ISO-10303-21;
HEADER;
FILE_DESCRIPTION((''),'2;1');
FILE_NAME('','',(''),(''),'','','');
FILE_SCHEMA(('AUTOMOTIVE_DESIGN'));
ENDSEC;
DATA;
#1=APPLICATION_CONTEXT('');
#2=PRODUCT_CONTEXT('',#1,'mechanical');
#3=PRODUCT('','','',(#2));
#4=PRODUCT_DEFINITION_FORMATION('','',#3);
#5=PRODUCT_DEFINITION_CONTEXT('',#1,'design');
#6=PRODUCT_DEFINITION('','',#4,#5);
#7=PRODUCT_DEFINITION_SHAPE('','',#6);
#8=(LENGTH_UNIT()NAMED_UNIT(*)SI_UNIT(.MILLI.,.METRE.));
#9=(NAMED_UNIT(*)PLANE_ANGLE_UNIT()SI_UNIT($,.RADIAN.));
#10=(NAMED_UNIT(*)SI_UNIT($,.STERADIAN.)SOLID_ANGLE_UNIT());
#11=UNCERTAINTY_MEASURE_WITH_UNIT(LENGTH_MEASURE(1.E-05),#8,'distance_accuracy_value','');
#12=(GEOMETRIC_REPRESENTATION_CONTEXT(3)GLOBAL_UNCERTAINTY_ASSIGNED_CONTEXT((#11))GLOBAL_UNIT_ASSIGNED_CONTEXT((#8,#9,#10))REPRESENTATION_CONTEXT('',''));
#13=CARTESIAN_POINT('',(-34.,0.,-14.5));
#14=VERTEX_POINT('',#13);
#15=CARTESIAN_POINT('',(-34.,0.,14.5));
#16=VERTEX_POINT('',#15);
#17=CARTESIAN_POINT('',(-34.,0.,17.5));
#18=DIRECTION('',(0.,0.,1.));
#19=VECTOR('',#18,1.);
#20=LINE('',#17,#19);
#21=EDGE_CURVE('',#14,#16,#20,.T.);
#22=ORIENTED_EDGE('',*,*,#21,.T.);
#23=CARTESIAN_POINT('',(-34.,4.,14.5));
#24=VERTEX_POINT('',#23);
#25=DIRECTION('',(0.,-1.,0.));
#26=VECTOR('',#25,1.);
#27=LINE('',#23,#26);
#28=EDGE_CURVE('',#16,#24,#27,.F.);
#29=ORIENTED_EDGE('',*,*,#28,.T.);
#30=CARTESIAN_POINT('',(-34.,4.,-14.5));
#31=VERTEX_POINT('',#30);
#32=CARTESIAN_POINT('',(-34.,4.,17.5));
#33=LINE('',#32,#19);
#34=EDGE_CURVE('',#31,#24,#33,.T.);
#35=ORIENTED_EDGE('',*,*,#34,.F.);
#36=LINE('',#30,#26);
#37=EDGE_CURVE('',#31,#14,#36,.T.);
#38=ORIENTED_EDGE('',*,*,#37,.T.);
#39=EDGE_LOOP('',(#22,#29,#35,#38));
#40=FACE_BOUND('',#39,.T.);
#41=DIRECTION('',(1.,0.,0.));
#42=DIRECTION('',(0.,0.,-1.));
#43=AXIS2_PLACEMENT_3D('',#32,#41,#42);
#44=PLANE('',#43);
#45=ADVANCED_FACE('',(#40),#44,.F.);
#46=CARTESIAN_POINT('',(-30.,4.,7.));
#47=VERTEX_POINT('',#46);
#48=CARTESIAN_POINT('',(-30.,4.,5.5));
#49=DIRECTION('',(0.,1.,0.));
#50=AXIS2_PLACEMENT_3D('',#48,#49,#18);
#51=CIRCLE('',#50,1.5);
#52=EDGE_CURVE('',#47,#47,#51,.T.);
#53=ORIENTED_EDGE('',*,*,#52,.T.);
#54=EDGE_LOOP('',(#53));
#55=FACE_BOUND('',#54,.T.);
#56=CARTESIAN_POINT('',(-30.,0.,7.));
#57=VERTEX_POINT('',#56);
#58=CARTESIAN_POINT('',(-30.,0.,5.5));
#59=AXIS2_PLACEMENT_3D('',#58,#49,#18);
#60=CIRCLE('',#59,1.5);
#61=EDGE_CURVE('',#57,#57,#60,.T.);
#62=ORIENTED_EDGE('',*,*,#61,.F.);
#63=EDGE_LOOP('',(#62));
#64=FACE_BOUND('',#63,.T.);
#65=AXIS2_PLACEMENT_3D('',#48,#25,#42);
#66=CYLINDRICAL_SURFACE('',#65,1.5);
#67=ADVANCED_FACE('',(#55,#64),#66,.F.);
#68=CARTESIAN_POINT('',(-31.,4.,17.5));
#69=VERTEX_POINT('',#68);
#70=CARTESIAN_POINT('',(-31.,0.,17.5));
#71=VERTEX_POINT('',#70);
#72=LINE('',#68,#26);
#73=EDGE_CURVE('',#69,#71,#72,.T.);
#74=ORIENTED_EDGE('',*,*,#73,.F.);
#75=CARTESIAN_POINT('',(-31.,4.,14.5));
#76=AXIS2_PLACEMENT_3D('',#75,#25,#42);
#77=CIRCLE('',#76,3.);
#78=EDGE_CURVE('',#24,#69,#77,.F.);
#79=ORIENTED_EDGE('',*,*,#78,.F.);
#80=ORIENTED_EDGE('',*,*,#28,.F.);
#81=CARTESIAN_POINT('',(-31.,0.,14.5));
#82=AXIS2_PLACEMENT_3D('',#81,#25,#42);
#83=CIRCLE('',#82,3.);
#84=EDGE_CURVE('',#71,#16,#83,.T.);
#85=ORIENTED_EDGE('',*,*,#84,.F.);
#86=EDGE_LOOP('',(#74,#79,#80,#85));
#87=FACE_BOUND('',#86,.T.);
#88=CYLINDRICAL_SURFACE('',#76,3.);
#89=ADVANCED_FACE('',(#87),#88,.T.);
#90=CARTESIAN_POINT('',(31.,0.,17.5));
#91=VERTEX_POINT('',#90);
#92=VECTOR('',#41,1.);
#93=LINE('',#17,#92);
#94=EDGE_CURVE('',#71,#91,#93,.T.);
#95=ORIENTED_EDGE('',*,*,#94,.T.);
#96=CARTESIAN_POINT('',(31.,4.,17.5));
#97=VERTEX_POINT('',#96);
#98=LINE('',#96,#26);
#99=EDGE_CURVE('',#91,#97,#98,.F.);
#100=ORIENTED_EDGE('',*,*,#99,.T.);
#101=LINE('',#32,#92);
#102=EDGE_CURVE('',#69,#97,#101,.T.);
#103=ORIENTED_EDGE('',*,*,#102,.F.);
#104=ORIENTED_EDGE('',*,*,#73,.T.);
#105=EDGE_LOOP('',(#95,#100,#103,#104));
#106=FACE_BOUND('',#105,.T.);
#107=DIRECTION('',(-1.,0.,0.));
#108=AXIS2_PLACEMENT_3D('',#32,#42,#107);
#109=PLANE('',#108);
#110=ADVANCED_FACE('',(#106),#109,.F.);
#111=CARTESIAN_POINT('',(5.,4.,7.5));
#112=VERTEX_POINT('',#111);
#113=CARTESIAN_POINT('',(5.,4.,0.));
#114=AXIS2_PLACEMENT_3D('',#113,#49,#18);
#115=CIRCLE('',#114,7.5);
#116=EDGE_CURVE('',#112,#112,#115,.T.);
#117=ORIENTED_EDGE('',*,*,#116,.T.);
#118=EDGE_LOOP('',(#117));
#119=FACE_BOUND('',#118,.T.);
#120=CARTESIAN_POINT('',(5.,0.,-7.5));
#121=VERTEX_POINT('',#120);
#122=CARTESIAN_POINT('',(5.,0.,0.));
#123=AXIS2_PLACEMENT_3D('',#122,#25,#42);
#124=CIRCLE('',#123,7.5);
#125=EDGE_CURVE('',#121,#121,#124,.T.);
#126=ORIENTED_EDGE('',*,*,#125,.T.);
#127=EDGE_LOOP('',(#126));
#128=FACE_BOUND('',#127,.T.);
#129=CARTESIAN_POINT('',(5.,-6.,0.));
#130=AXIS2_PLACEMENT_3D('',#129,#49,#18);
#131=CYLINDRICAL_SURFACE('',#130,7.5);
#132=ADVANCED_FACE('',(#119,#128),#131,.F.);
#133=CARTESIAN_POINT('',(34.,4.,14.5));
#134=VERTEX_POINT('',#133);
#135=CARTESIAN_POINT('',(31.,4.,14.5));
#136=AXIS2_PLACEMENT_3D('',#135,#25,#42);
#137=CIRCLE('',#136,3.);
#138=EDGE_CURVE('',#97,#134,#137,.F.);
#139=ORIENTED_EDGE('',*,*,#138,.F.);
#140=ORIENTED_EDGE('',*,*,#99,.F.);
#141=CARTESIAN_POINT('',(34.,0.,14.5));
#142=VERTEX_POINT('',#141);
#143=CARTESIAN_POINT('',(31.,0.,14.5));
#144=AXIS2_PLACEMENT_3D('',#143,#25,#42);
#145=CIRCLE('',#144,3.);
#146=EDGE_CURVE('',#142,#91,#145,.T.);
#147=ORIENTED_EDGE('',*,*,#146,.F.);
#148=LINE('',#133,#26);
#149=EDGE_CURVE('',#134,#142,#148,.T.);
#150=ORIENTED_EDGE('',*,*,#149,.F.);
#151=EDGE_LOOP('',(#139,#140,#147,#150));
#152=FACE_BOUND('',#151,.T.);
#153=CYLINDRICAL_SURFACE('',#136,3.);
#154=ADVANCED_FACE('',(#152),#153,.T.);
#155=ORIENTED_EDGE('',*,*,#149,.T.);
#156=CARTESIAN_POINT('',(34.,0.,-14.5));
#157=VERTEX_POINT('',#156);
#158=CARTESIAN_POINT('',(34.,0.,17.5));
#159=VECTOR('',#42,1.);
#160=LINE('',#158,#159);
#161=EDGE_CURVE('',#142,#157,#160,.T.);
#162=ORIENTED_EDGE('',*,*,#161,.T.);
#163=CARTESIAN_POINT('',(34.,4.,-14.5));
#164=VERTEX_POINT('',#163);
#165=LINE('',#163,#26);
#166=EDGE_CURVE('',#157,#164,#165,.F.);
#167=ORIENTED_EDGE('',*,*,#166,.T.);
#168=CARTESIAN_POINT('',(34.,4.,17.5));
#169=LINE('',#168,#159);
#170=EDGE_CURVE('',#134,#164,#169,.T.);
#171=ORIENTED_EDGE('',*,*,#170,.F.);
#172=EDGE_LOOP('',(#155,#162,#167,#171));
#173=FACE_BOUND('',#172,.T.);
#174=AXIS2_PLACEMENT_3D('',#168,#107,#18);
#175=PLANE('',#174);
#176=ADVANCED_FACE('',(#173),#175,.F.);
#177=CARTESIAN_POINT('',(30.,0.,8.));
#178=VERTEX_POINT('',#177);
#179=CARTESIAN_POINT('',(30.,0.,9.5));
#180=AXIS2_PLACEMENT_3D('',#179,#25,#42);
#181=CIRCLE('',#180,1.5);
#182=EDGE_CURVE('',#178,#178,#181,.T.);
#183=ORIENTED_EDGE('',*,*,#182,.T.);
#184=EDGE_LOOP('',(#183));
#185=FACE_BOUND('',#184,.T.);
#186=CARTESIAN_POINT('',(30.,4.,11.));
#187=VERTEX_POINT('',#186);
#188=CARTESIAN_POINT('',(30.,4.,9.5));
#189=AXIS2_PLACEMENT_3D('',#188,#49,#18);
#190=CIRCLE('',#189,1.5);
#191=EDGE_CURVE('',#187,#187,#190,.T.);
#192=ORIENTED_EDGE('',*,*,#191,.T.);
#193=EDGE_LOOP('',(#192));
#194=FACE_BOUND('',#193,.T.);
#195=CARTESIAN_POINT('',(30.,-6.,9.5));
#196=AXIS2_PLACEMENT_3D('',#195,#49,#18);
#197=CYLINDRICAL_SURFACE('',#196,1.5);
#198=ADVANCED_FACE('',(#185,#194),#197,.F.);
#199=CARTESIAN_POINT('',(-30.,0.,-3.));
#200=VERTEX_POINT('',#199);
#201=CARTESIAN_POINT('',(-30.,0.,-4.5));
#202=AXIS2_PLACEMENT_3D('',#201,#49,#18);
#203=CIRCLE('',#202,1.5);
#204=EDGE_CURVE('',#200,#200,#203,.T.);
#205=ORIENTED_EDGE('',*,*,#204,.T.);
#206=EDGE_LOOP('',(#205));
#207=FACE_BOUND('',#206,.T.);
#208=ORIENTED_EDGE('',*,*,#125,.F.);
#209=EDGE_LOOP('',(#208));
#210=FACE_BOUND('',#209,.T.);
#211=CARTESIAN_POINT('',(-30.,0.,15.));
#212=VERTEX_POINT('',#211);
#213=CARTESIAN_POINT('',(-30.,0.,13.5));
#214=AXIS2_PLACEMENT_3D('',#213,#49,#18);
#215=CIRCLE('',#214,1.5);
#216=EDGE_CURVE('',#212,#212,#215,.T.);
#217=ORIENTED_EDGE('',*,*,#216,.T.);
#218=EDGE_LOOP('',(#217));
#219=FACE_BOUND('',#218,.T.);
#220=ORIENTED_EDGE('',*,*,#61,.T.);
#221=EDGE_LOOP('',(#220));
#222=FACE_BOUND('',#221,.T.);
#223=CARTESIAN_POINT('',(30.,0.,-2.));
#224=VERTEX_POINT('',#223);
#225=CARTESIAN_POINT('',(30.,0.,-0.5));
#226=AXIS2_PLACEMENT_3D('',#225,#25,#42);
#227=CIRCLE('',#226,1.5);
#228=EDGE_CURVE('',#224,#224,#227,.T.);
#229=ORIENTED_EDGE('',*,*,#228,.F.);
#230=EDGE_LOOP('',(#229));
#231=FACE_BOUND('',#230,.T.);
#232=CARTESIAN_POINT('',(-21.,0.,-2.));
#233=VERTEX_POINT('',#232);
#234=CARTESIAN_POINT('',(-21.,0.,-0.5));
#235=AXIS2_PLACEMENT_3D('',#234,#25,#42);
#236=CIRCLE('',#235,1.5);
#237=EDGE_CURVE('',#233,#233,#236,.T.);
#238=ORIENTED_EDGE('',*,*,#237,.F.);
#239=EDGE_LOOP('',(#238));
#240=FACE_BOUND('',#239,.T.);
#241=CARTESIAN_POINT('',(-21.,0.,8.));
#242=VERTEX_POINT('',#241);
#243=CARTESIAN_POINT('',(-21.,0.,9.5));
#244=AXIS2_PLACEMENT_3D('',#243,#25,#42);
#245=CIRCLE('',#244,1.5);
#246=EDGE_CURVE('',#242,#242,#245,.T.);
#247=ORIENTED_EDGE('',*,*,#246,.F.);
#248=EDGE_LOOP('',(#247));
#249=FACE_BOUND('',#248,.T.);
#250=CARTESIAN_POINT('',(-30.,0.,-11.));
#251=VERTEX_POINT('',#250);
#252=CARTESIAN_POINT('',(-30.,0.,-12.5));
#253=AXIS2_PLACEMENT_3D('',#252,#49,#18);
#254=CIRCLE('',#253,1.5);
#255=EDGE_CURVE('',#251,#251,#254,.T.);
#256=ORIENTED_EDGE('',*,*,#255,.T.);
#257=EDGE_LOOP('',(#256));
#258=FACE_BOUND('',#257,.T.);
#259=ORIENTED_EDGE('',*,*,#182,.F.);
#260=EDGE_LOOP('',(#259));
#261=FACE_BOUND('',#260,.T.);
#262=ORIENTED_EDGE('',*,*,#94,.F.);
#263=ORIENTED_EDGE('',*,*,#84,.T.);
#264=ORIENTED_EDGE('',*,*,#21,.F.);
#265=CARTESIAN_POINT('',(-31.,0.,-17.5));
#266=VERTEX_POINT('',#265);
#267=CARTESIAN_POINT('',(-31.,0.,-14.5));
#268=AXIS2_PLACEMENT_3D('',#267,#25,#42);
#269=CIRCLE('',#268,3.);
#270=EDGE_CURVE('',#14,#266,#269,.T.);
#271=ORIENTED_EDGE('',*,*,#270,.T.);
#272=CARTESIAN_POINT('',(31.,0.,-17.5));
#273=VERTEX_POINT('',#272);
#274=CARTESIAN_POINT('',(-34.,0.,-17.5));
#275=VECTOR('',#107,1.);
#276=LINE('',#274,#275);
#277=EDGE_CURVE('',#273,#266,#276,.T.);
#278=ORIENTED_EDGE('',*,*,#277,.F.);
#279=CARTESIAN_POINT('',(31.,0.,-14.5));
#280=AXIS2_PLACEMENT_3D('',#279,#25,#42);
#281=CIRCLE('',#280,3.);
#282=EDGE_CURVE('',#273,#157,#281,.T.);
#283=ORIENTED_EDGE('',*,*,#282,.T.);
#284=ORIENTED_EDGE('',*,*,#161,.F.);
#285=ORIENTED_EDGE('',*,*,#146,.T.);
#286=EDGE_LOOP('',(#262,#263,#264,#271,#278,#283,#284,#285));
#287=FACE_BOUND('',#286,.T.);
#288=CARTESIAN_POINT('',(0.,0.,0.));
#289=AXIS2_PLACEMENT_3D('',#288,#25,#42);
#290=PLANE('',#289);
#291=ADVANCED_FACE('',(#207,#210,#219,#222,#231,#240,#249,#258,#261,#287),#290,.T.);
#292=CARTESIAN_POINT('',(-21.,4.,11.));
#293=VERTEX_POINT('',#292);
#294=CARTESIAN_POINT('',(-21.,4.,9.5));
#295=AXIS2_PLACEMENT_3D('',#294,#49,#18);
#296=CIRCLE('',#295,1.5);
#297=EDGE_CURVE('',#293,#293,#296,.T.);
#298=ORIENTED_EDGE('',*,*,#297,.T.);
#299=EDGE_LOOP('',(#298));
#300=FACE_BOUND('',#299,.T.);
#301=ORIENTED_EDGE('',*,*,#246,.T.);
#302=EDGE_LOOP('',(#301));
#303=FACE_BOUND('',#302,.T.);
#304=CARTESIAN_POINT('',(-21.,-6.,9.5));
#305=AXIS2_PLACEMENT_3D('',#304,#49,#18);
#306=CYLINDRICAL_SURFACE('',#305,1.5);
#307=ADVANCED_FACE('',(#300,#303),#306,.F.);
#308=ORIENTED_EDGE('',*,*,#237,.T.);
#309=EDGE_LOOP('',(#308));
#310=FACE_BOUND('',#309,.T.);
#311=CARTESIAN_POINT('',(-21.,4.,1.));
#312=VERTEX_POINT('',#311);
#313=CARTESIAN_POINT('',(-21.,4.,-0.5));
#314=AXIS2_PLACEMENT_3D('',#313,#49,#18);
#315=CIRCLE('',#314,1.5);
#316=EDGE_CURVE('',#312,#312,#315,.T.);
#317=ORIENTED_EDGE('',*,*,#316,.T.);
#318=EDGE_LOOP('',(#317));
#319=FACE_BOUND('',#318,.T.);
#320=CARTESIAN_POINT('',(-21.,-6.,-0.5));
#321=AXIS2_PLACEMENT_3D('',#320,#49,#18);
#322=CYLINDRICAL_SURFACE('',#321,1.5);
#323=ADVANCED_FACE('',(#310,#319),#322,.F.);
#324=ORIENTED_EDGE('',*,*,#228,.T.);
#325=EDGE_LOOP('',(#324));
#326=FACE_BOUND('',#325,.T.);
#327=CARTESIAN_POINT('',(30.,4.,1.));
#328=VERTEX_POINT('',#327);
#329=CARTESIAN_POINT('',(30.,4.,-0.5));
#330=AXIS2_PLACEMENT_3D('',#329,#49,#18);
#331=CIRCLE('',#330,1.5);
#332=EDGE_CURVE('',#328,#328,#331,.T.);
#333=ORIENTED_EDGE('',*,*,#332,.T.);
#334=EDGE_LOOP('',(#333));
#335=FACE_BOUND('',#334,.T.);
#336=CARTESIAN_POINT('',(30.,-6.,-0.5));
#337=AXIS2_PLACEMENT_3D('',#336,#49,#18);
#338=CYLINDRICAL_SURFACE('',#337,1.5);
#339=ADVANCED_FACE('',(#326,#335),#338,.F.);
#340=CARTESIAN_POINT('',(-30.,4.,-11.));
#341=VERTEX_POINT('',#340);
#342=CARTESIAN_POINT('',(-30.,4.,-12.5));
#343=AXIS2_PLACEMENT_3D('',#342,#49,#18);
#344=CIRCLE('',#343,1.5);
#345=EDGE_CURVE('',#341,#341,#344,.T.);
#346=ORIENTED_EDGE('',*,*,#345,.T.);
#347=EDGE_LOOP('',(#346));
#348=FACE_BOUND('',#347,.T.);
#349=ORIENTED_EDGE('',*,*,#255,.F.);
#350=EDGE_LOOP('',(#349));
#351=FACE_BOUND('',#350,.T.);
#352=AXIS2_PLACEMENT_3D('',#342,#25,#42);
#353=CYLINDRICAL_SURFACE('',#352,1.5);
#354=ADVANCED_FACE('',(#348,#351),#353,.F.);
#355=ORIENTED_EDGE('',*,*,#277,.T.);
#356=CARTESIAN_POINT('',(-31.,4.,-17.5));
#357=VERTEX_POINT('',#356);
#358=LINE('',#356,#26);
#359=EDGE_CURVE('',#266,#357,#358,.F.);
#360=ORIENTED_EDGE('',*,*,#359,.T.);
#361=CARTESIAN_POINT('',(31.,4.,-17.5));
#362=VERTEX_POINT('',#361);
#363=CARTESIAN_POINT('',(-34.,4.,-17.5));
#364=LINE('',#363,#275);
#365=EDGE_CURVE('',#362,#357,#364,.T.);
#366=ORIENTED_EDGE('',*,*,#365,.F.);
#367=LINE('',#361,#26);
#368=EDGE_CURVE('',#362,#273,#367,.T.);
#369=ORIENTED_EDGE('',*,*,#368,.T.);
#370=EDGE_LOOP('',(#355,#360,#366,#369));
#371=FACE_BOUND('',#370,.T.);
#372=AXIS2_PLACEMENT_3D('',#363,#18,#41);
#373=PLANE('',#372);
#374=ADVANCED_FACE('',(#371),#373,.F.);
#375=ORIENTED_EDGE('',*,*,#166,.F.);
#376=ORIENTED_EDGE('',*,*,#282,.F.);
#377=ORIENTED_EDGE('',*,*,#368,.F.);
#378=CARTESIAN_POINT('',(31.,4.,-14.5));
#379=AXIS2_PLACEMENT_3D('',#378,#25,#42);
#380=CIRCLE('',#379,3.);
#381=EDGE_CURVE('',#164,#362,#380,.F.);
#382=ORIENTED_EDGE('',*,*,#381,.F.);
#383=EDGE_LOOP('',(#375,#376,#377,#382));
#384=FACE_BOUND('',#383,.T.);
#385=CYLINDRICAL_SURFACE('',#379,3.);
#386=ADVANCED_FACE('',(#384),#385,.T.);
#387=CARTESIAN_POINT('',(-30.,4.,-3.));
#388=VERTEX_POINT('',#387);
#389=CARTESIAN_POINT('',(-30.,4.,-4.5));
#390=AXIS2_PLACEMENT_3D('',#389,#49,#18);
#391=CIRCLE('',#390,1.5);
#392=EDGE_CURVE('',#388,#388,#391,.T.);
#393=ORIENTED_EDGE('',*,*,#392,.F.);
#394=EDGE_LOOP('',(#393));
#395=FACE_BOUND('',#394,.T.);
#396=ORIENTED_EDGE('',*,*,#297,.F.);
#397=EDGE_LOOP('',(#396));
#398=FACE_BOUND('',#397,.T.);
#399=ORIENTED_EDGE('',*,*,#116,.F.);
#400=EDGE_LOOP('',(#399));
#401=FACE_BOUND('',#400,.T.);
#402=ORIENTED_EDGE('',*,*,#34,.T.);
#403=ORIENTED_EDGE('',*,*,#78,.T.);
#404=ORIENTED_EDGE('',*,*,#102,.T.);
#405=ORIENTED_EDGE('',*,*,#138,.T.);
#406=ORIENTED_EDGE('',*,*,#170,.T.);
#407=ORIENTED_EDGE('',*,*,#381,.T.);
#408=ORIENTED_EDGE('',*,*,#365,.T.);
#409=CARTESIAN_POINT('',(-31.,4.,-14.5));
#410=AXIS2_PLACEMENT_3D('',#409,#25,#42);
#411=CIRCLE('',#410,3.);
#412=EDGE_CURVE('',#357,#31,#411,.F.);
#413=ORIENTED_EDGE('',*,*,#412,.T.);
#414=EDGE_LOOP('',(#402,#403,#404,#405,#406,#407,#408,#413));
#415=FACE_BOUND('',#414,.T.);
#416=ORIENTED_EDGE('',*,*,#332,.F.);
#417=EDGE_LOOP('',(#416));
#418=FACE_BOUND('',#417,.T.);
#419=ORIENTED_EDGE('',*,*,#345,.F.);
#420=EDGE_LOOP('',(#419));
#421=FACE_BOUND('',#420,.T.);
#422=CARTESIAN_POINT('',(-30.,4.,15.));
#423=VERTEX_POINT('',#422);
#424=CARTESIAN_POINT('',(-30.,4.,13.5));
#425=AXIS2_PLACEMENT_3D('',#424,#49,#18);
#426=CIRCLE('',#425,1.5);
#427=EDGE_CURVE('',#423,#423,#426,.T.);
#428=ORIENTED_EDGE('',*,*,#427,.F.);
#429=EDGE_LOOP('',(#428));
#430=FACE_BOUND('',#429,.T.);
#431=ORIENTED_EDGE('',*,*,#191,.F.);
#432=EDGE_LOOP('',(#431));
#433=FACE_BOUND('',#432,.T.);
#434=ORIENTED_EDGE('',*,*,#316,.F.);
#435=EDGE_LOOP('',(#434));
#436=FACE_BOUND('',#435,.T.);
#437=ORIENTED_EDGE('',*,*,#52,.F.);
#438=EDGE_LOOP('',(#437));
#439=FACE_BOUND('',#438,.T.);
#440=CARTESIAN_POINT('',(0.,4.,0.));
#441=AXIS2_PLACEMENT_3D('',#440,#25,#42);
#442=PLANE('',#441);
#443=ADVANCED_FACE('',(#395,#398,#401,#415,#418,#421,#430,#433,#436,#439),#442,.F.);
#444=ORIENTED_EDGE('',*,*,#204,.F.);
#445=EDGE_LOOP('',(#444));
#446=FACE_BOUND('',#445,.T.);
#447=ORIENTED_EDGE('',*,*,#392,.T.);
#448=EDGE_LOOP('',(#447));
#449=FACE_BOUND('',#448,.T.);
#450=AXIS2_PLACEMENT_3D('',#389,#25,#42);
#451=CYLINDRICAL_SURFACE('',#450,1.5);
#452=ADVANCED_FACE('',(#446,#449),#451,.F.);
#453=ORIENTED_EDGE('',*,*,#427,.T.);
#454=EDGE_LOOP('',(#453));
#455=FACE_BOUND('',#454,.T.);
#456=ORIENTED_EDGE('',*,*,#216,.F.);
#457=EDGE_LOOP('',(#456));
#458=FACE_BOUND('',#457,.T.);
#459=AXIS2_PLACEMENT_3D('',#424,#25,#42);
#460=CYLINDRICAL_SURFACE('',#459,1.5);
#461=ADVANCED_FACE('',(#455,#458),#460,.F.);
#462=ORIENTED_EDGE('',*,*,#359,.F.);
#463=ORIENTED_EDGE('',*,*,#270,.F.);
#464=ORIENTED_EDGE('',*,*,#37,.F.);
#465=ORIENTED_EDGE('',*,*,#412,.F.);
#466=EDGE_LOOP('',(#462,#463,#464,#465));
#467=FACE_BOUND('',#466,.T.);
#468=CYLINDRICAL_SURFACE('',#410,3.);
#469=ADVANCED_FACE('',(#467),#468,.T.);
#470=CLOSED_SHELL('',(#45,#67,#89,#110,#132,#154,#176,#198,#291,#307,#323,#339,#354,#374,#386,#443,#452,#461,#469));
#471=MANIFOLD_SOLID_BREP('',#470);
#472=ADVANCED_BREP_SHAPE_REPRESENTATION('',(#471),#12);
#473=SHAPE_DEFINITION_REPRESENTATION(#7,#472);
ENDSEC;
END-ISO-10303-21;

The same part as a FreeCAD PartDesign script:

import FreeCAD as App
import Part
import Sketcher

V = App.Vector
Q = App.Units.Quantity


def edges_at(feature, points):
    """Names of the edges that pass closest to the given points."""
    edges = feature.Shape.Edges
    near = lambda p: min(range(len(edges)), key=lambda i: edges[i].distToShape(Part.Vertex(*p))[0])
    return sorted({f"Edge{near(p) + 1}" for p in points})

doc = App.newDocument("Part")
body = doc.addObject("PartDesign::Body", "Body")

sketch1 = body.newObject("Sketcher::SketchObject", "Sketch")
sketch1.AttachmentSupport = (doc.getObject("XZ_Plane"), [""])
sketch1.MapMode = "FlatFace"
sketch1.addGeometry([
    Part.LineSegment(V(-34, -17.5, 0), V(-34, 17.5, 0)),
    Part.LineSegment(V(-34, 17.5, 0), V(34, 17.5, 0)),
    Part.LineSegment(V(34, 17.5, 0), V(34, -17.5, 0)),
    Part.LineSegment(V(34, -17.5, 0), V(-34, -17.5, 0)),
    Part.Circle(V(-30, 13.5, 0), V(0, 0, 1), 1.5),
    Part.Circle(V(-30, 5.5, 0), V(0, 0, 1), 1.5),
    Part.Circle(V(-30, -4.5, 0), V(0, 0, 1), 1.5),
    Part.Circle(V(-30, -12.5, 0), V(0, 0, 1), 1.5),
], False)
sketch1.addConstraint([
    Sketcher.Constraint("Coincident", 0, 2, 1, 1),
    Sketcher.Constraint("Coincident", 1, 2, 2, 1),
    Sketcher.Constraint("Coincident", 2, 2, 3, 1),
    Sketcher.Constraint("Coincident", 3, 2, 0, 1),
    Sketcher.Constraint("Vertical", 0),
    Sketcher.Constraint("Horizontal", 1),
    Sketcher.Constraint("Vertical", 2),
    Sketcher.Constraint("Horizontal", 3),
    Sketcher.Constraint("Equal", 4, 5),
    Sketcher.Constraint("Equal", 5, 6),
    Sketcher.Constraint("Equal", 6, 7),
    Sketcher.Constraint("Symmetric", 0, 2, 2, 2, -1, 1),
    Sketcher.Constraint("Vertical", 4, 3, 5, 3),
    Sketcher.Constraint("Vertical", 5, 3, 6, 3),
    Sketcher.Constraint("Vertical", 6, 3, 7, 3),
    Sketcher.Constraint("Diameter", 4, Q("3 mm")),
    Sketcher.Constraint("DistanceX", 1, 1, 1, 2, Q("68 mm")),
    Sketcher.Constraint("DistanceY", 0, 1, 0, 2, Q("35 mm")),
    Sketcher.Constraint("DistanceX", 4, 3, -1, 1, Q("30 mm")),
    Sketcher.Constraint("DistanceY", 5, 3, 4, 3, Q("8 mm")),
    Sketcher.Constraint("DistanceY", 6, 3, 5, 3, Q("10 mm")),
    Sketcher.Constraint("DistanceY", 7, 3, 6, 3, Q("8 mm")),
    Sketcher.Constraint("DistanceY", 4, 3, 0, 2, Q("4 mm")),
])
pad1 = body.newObject("PartDesign::Pad", "Pad")
pad1.Profile = sketch1
pad1.Length = 4
pad1.Reversed = True
doc.recompute()

fillet = body.newObject("PartDesign::Fillet", "Fillet")
fillet.Base = (pad1, edges_at(pad1, [
    (34, 2, 17.5),
    (-34, 2, 17.5),
    (-34, 2, -17.5),
    (34, 2, -17.5),
]))
fillet.Radius = 3

sketch2 = body.newObject("Sketcher::SketchObject", "Sketch001")
sketch2.AttachmentSupport = (doc.getObject("XZ_Plane"), [""])
sketch2.MapMode = "FlatFace"
sketch2.AttachmentOffset = App.Placement(V(0, 0, -4), App.Rotation())
sketch2.addGeometry([
    Part.Circle(V(-21, -0.5, 0), V(0, 0, 1), 1.5),
    Part.Circle(V(30, -0.5, 0), V(0, 0, 1), 1.5),
    Part.Circle(V(-21, 9.5, 0), V(0, 0, 1), 1.5),
    Part.Circle(V(30, 9.5, 0), V(0, 0, 1), 1.5),
    Part.Circle(V(5, 0, 0), V(0, 0, 1), 7.5),
], False)
sketch2.addConstraint([
    Sketcher.Constraint("Equal", 0, 1),
    Sketcher.Constraint("Equal", 1, 2),
    Sketcher.Constraint("Equal", 2, 3),
    Sketcher.Constraint("PointOnObject", 4, 3, -1),
    Sketcher.Constraint("Horizontal", 0, 3, 1, 3),
    Sketcher.Constraint("Horizontal", 2, 3, 3, 3),
    Sketcher.Constraint("Vertical", 0, 3, 2, 3),
    Sketcher.Constraint("Vertical", 1, 3, 3, 3),
    Sketcher.Constraint("Diameter", 0, Q("3 mm")),
    Sketcher.Constraint("Diameter", 4, Q("15 mm")),
    Sketcher.Constraint("DistanceX", 0, 3, -1, 1, Q("21 mm")),
    Sketcher.Constraint("DistanceX", -1, 1, 1, 3, Q("30 mm")),
    Sketcher.Constraint("DistanceX", -1, 1, 4, 3, Q("5 mm")),
    Sketcher.Constraint("DistanceY", 0, 3, 2, 3, Q("10 mm")),
    Sketcher.Constraint("DistanceY", 0, 3, -1, 1, Q("0.5 mm")),
])
pocket1 = body.newObject("PartDesign::Pocket", "Pocket")
pocket1.Profile = sketch2
pocket1.Length = 10
pocket1.Reversed = True

doc.recompute()
